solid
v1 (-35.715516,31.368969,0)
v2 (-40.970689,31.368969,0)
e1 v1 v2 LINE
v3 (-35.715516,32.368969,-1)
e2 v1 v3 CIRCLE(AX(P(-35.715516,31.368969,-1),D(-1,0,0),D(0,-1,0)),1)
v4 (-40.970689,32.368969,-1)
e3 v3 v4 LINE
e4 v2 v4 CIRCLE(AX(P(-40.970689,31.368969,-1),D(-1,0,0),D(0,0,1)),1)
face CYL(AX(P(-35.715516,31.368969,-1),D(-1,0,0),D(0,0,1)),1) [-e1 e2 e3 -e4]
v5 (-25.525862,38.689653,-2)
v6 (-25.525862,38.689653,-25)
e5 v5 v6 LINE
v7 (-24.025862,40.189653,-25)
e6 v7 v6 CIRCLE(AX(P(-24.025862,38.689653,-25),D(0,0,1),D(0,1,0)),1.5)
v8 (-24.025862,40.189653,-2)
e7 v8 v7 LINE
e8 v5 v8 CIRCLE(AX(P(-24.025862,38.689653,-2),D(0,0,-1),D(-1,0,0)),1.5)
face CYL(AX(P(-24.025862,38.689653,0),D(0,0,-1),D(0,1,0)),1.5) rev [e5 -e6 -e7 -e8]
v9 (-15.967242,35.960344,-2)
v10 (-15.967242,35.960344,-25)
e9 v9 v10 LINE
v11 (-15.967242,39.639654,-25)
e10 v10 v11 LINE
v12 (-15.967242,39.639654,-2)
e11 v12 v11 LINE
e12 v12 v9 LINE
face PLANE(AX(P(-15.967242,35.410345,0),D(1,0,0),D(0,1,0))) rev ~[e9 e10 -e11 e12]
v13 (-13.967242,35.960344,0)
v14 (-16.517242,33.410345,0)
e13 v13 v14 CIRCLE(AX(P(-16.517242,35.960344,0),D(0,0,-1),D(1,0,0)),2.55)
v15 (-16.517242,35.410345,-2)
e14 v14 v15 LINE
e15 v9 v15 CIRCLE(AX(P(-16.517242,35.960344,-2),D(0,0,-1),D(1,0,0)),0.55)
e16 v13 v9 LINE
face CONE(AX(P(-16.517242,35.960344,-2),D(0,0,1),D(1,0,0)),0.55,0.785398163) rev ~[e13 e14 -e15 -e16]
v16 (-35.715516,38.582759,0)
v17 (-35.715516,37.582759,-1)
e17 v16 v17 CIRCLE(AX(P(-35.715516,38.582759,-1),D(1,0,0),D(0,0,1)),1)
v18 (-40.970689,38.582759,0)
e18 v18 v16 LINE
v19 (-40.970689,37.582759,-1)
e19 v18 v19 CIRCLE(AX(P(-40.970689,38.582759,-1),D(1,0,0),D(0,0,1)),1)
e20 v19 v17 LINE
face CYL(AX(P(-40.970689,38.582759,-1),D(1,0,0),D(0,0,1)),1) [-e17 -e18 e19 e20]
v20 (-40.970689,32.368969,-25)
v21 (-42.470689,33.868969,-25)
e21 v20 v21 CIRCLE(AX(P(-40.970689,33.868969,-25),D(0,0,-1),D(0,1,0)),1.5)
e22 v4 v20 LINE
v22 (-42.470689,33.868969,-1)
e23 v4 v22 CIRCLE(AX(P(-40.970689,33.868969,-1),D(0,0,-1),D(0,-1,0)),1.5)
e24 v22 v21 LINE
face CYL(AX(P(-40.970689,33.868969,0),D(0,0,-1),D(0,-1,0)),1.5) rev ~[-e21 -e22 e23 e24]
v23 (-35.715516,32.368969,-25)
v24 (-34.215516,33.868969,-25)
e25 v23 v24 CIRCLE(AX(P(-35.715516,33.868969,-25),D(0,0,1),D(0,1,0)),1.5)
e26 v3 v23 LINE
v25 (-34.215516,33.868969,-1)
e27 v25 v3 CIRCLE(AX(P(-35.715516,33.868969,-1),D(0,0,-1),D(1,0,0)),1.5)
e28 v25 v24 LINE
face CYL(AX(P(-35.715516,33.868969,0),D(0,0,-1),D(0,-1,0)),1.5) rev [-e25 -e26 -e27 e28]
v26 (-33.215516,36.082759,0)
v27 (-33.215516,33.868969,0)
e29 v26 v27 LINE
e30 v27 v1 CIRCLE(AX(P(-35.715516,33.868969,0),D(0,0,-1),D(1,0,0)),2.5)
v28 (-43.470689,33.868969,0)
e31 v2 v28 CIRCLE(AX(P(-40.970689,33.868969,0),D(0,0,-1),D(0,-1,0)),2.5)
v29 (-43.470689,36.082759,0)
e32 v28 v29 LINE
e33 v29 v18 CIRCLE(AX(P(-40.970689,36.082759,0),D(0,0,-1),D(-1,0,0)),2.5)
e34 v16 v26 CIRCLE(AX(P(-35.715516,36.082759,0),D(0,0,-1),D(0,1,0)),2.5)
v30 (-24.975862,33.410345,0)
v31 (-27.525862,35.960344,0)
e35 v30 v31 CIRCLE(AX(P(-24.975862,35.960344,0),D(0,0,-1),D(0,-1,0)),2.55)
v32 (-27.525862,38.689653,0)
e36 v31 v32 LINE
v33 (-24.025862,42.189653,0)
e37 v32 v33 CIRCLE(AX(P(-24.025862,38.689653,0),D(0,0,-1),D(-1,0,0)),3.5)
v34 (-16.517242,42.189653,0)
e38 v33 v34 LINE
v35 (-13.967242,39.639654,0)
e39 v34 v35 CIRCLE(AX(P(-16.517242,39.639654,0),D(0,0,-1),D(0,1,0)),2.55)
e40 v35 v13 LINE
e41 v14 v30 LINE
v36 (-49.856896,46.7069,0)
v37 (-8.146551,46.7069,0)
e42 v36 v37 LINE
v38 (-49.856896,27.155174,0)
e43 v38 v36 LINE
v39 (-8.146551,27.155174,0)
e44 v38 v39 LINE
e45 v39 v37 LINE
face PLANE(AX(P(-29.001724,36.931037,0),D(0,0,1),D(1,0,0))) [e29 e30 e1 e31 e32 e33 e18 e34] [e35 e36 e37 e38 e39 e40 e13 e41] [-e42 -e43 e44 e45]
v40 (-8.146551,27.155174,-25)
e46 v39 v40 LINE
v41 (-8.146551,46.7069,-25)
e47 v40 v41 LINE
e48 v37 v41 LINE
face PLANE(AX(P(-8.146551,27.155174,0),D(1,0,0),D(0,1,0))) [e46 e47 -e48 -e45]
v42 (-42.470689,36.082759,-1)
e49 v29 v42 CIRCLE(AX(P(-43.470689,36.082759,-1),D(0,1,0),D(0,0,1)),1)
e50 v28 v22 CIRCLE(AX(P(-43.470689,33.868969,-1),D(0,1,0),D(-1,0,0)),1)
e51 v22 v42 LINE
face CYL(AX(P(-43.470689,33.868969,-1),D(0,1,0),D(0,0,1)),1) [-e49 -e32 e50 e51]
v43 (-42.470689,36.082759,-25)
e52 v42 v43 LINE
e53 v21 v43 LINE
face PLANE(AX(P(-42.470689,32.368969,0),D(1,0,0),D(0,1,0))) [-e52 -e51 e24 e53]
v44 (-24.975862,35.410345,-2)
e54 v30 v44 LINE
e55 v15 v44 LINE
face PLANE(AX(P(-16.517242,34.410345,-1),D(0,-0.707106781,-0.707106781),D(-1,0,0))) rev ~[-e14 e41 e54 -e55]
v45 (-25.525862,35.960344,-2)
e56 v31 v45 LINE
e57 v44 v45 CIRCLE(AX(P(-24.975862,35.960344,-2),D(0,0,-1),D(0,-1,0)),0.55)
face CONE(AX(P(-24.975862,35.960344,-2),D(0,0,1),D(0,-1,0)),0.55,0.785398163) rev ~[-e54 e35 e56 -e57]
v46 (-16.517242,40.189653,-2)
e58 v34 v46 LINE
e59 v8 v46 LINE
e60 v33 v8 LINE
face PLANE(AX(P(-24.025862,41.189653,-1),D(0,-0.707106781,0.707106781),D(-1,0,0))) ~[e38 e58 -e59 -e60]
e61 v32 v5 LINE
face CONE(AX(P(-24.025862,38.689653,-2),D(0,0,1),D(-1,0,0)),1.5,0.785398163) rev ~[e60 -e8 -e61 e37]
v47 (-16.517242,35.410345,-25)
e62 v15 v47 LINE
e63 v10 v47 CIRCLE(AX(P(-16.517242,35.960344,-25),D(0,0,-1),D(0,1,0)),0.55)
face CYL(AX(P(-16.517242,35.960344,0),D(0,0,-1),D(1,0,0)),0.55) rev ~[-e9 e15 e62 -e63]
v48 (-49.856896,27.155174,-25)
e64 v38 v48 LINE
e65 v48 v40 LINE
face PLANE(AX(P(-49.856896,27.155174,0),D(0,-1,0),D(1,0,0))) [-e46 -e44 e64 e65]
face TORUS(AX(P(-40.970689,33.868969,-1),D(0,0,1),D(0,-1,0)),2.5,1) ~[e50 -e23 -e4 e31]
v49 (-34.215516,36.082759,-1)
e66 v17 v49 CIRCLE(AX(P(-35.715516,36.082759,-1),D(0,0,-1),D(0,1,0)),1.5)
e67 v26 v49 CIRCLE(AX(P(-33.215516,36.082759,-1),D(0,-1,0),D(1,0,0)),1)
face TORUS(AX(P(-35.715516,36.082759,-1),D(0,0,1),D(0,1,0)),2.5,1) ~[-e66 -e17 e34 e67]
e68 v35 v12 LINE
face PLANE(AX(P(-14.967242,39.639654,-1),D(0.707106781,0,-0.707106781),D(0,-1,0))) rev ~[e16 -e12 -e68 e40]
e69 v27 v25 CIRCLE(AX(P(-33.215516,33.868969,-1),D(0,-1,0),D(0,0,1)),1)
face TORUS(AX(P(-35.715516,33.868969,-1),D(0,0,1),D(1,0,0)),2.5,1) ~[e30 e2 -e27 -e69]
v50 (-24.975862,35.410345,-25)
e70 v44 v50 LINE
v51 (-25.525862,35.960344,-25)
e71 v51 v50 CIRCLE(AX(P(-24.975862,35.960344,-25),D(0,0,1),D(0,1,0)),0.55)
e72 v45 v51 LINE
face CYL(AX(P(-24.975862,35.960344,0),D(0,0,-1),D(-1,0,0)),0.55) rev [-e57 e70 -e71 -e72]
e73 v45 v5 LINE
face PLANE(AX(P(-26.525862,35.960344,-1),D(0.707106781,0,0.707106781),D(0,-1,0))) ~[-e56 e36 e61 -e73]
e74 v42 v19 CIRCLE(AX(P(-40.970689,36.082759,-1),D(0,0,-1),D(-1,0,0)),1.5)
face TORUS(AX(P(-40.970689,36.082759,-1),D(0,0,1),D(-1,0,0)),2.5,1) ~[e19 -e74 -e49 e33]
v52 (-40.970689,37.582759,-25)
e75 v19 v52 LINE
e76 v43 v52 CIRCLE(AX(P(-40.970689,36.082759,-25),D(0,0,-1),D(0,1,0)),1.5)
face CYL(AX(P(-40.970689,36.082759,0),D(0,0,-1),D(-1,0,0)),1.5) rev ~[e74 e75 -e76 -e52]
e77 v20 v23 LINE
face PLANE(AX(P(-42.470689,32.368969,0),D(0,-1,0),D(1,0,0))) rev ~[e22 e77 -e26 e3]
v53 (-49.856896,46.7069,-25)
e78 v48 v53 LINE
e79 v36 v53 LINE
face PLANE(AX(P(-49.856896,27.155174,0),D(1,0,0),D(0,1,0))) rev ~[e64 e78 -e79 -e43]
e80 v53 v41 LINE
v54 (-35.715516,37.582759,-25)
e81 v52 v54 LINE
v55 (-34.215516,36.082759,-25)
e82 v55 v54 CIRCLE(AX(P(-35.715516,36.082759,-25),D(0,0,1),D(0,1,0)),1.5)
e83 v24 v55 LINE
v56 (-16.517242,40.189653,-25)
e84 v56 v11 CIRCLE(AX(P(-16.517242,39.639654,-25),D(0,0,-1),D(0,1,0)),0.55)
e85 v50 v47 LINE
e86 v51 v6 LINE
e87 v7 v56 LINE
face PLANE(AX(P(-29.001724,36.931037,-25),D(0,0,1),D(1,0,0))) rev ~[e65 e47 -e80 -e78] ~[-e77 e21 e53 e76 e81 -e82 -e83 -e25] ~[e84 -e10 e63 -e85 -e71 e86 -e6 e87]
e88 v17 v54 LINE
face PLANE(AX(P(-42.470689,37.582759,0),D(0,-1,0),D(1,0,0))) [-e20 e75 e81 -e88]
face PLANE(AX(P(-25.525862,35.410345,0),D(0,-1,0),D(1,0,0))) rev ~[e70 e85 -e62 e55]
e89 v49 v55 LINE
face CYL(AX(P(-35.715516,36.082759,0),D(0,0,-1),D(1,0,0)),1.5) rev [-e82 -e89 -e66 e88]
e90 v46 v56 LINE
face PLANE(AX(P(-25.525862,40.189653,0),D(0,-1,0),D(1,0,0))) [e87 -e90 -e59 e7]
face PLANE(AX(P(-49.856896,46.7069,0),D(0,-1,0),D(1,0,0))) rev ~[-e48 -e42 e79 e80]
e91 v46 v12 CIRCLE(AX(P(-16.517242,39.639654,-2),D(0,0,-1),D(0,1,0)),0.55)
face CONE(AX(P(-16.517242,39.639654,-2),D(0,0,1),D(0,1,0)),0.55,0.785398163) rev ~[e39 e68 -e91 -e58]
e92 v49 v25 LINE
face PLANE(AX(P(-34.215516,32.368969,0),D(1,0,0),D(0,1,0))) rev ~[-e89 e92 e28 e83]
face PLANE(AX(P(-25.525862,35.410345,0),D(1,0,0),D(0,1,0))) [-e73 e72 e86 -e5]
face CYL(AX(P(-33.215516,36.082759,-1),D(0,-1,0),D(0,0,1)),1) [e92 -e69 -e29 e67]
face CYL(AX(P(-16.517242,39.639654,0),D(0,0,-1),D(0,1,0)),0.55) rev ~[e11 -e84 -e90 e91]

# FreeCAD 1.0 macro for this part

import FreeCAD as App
import Part
import Sketcher


def edges_at(feature, points):
    """Names of the edges that pass closest to the given points."""
    edges = feature.Shape.Edges
    near = lambda p: min(range(len(edges)), key=lambda i: edges[i].distToShape(Part.Vertex(*p))[0])
    return sorted({f"Edge{near(p) + 1}" for p in points})


def add_polygon(sketch, points):
    """Adds a closed chain of lines whose ends are joined by coincident constraints."""
    first, n = sketch.GeometryCount, len(points)
    for a, b in zip(points, points[1:] + points[:1]):
        sketch.addGeometry(Part.LineSegment(App.Vector(*a, 0), App.Vector(*b, 0)), False)
    for i in range(n):
        sketch.addConstraint(Sketcher.Constraint("Coincident", first + i, 2, first + (i + 1) % n, 1))

doc = App.newDocument("Part")
body = doc.addObject("PartDesign::Body", "Body")

# Sketch on XY plane
sketch1 = body.newObject("Sketcher::SketchObject", "Sketch")
sketch1.AttachmentSupport = (doc.getObject("XY_Plane"), [""])
sketch1.MapMode = "FlatFace"
add_polygon(sketch1, [(-49.9, 46.7), (-49.9, 27.2), (-8.1, 27.2), (-8.1, 46.7)])  # lines 0-3
add_polygon(sketch1, [(-34.2, 32.4), (-42.5, 32.4), (-42.5, 37.6), (-34.2, 37.6)])  # lines 4-7
add_polygon(sketch1, [(-16, 35.4), (-25.5, 35.4), (-25.5, 40.2), (-16, 40.2)])  # lines 8-11
sketch1.addConstraint([
    Sketcher.Constraint("Vertical", 0),
    Sketcher.Constraint("Horizontal", 1),
    Sketcher.Constraint("Vertical", 2),
    Sketcher.Constraint("Horizontal", 3),
    Sketcher.Constraint("Horizontal", 4),
    Sketcher.Constraint("Vertical", 5),
    Sketcher.Constraint("Horizontal", 6),
    Sketcher.Constraint("Vertical", 7),
    Sketcher.Constraint("Horizontal", 8),
    Sketcher.Constraint("Vertical", 9),
    Sketcher.Constraint("Horizontal", 10),
    Sketcher.Constraint("Vertical", 11),
    Sketcher.Constraint("DistanceX", 8, 2, 8, 1, 9.55862),
    Sketcher.Constraint("DistanceY", 5, 1, 5, 2, 5.21379),
    Sketcher.Constraint("DistanceY", 9, 1, 9, 2, 4.779309),
    Sketcher.Constraint("DistanceY", -1, 1, 2, 2, 46.7069),
    Sketcher.Constraint("DistanceX", 1, 1, 1, 2, 41.710345),
    Sketcher.Constraint("DistanceX", 4, 2, 4, 1, 8.255173),
    Sketcher.Constraint("DistanceY", 0, 2, 0, 1, 19.551726),
    Sketcher.Constraint("DistanceX", 1, 2, -1, 1, 8.146551),
    Sketcher.Constraint("DistanceX", 4, 2, -1, 1, 42.470689),
    Sketcher.Constraint("DistanceY", -1, 1, 4, 2, 32.368969),
    Sketcher.Constraint("DistanceX", 8, 2, -1, 1, 25.525862),
    Sketcher.Constraint("DistanceY", 1, 2, 8, 2, 8.255171),
])
pad1 = body.newObject("PartDesign::Pad", "Pad")
pad1.Profile = sketch1
pad1.Length = 25
pad1.Reversed = True
doc.recompute()

fillet = body.newObject("PartDesign::Fillet", "Fillet")
fillet.Base = (pad1, edges_at(pad1, [
    (-42.471, 37.583, -12.5),
    (-34.216, 37.583, -12.5),
    (-42.471, 32.369, -12.5),
    (-34.216, 32.369, -12.5),
    (-25.526, 40.19, -12.5),
]))
fillet.Radius = 1.5
doc.recompute()

fillet2 = body.newObject("PartDesign::Fillet", "Fillet001")
fillet2.Base = (fillet, edges_at(fillet, [(-15.967, 40.19, -12.5), (-25.526, 35.41, -12.5), (-15.967, 35.41, -12.5)]))
fillet2.Radius = 0.55
doc.recompute()

fillet3 = body.newObject("PartDesign::Fillet", "Fillet002")
fillet3.Base = (fillet2, edges_at(fillet2, [(-38.343, 37.583, 0)]))
fillet3.Radius = 1
doc.recompute()

chamfer = body.newObject("PartDesign::Chamfer", "Chamfer")
chamfer.Base = (fillet3, edges_at(fillet3, [(-20.272, 40.19, 0)]))
chamfer.Size = 2

doc.recompute()
